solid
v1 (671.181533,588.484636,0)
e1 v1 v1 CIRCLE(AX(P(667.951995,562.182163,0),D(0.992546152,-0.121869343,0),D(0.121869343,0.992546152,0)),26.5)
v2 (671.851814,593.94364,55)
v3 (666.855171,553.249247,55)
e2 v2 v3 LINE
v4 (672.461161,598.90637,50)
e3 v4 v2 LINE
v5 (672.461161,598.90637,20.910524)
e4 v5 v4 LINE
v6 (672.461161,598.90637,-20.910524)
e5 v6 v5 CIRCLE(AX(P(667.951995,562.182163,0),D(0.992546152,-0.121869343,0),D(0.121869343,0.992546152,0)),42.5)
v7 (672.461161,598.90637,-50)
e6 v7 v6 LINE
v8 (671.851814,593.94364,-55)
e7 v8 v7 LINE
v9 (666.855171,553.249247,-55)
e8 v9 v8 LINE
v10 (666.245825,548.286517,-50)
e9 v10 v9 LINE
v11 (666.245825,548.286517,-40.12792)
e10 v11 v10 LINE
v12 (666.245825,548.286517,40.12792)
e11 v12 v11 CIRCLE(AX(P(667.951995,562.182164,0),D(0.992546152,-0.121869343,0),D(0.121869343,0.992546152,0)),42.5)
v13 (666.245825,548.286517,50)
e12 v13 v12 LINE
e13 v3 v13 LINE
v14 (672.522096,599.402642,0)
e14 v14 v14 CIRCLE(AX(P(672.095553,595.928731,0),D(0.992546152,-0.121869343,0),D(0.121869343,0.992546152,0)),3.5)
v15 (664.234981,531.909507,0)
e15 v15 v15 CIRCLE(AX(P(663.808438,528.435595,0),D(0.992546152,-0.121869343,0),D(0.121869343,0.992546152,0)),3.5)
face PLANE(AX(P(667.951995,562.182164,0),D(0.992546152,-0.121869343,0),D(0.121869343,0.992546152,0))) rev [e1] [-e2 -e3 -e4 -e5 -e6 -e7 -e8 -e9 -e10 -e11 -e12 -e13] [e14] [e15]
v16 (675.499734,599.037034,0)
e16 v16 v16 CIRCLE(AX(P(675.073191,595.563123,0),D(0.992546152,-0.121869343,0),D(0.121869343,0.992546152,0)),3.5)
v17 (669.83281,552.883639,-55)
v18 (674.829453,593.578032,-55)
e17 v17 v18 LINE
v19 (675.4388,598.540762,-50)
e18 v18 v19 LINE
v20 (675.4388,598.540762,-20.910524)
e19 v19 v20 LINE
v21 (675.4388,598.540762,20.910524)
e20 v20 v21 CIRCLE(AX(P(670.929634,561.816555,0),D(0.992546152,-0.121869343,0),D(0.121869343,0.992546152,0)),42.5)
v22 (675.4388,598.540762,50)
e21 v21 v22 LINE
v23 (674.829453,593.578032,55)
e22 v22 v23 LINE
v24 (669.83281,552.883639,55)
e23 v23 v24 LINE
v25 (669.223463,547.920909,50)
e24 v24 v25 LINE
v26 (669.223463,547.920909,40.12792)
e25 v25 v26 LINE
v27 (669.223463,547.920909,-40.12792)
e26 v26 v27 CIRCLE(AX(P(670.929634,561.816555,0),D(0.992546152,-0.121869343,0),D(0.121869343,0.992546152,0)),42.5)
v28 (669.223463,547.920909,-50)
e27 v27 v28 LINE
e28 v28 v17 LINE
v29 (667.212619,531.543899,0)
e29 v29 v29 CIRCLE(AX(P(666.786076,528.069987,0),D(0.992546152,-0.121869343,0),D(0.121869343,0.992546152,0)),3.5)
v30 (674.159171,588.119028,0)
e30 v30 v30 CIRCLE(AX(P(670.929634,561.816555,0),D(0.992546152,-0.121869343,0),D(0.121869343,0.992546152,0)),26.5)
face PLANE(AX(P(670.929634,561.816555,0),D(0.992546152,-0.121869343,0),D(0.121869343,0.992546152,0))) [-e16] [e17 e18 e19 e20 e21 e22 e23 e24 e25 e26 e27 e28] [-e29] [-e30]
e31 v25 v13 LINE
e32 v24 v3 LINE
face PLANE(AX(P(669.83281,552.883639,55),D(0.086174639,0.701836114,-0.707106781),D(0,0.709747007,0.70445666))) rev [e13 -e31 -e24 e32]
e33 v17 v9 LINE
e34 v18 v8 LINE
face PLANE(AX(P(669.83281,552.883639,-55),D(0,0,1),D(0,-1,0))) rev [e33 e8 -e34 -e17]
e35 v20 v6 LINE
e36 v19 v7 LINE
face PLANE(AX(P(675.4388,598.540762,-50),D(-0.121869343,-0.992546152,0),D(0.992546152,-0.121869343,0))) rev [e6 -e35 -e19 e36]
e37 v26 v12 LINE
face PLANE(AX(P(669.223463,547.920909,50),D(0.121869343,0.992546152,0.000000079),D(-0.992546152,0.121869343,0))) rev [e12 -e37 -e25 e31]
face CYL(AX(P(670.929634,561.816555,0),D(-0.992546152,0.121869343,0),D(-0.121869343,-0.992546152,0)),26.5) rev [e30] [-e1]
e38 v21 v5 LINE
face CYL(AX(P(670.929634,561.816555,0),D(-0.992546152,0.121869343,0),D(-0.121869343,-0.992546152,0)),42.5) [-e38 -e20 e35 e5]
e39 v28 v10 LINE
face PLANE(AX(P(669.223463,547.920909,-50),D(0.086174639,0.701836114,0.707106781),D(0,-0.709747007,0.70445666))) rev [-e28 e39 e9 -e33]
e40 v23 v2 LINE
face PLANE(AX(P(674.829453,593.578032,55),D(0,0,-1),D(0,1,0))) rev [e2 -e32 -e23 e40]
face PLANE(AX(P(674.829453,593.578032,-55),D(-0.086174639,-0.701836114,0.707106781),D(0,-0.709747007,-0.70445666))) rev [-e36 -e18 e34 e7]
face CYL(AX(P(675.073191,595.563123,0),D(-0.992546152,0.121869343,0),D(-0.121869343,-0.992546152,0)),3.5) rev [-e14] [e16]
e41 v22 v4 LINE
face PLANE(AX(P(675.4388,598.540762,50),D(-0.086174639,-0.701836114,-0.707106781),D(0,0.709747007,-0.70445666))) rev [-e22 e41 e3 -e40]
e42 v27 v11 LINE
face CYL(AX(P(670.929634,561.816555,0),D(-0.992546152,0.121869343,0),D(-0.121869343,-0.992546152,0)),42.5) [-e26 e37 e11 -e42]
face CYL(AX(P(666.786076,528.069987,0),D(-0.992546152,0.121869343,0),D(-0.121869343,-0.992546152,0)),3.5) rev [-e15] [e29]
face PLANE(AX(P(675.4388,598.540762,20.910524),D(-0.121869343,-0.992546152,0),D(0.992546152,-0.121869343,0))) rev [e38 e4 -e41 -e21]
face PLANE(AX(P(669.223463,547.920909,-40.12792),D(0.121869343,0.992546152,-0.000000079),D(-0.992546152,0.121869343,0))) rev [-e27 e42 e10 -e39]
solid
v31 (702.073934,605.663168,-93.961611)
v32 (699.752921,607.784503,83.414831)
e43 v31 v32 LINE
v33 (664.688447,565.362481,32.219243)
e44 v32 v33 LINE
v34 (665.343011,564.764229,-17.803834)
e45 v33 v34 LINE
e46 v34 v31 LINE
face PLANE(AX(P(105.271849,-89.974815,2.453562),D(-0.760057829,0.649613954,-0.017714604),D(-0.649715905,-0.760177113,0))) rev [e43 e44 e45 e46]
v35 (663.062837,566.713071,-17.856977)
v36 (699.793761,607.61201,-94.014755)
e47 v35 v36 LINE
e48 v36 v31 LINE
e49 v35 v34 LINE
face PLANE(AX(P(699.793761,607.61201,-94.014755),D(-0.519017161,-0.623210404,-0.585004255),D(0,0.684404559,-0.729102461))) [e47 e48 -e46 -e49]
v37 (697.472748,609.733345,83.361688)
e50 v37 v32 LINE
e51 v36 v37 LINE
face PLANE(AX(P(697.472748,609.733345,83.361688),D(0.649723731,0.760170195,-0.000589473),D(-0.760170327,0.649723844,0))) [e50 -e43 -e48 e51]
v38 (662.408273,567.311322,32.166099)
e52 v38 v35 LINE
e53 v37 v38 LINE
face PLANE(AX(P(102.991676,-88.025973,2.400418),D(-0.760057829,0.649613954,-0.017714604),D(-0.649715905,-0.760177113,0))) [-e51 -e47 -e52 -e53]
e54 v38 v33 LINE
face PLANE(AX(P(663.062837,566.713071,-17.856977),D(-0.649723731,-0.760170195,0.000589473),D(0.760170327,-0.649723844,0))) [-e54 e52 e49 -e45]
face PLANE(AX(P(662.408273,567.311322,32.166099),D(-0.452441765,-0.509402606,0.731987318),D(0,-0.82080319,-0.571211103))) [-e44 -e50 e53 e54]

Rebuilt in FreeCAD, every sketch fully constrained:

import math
import FreeCAD as App
import Part
import Sketcher
from FreeCAD import Vector

doc = App.newDocument("Part")
body = doc.addObject("PartDesign::Body", "Body")

# Sketch on an angled plane
sketch1 = doc.addObject("Sketcher::SketchObject", "Sketch")
body.addObject(sketch1)
sketch1.Placement = App.Placement(Vector(105.271849, -89.974815, 2.453562), App.Rotation(Vector(0.013083184, -0.011957632, -0.99984291), Vector(0.649723731, 0.760170195, -0.000589473), Vector(0.760057829, -0.649613954, 0.017714604), "ZXY"))
sketch1.addGeometry(Part.LineSegment(Vector(-82, 917, 0), Vector(-30, 862, 0)), False)
sketch1.addGeometry(Part.LineSegment(Vector(-30, 862, 0), Vector(20, 862, 0)), False)
sketch1.addGeometry(Part.LineSegment(Vector(20, 862, 0), Vector(96, 917, 0)), False)
sketch1.addGeometry(Part.LineSegment(Vector(96, 917, 0), Vector(-82, 917, 0)), False)
sketch1.addConstraint(Sketcher.Constraint("Coincident", 0, 2, 1, 1))
sketch1.addConstraint(Sketcher.Constraint("Coincident", 1, 2, 2, 1))
sketch1.addConstraint(Sketcher.Constraint("Coincident", 2, 2, 3, 1))
sketch1.addConstraint(Sketcher.Constraint("Coincident", 3, 2, 0, 1))
sketch1.addConstraint(Sketcher.Constraint("Horizontal", 1))
sketch1.addConstraint(Sketcher.Constraint("Horizontal", 3))
sketch1.addConstraint(Sketcher.Constraint("DistanceY", 1, 2, 2, 2, 55.0))
sketch1.addConstraint(Sketcher.Constraint("DistanceX", 3, 2, 3, 1, 177.404311))
sketch1.addConstraint(Sketcher.Constraint("DistanceX", -1, 1, 1, 2, 19.752599))
sketch1.addConstraint(Sketcher.Constraint("Distance", 0, 75.167371))
sketch1.addConstraint(Sketcher.Constraint("DistanceX", 1, 1, 1, 2, 50.030936))
sketch1.addConstraint(Sketcher.Constraint("DistanceY", -1, 1, 0, 2, 861.616572))
pad1 = doc.addObject("PartDesign::Pad", "Pad")
body.addObject(pad1)
pad1.Profile = sketch1
pad1.Length = 3
pad1.Reversed = True
body2 = doc.addObject("PartDesign::Body", "Body001")

# Sketch on an angled plane
sketch2 = doc.addObject("Sketcher::SketchObject", "Sketch001")
body2.addObject(sketch2)
sketch2.Placement = App.Placement(Vector(590.029394, -72.4465, 0), App.Rotation(Vector(0, 0, -1), Vector(0.121869343, 0.992546152, 0), Vector(0.992546152, -0.121869343, 0), "ZXY"))
sketch2.addGeometry(Part.LineSegment(Vector(40.1, 625.4, 0), Vector(50, 625.4, 0)), False)
sketch2.addGeometry(Part.LineSegment(Vector(50, 625.4, 0), Vector(55, 630.4, 0)), False)
sketch2.addGeometry(Part.LineSegment(Vector(55, 630.4, 0), Vector(55, 671.4, 0)), False)
sketch2.addGeometry(Part.LineSegment(Vector(55, 671.4, 0), Vector(50, 676.4, 0)), False)
sketch2.addGeometry(Part.LineSegment(Vector(50, 676.4, 0), Vector(20.9, 676.4, 0)), False)
sketch2.addGeometry(Part.ArcOfCircle(Part.Circle(Vector(0, 639.4, 0), Vector(0, 0, 1), 42.5), math.radians(61), math.radians(119)), False)
sketch2.addGeometry(Part.LineSegment(Vector(-20.9, 676.4, 0), Vector(-50, 676.4, 0)), False)
sketch2.addGeometry(Part.LineSegment(Vector(-50, 676.4, 0), Vector(-55, 671.4, 0)), False)
sketch2.addGeometry(Part.LineSegment(Vector(-55, 671.4, 0), Vector(-55, 630.4, 0)), False)
sketch2.addGeometry(Part.LineSegment(Vector(-55, 630.4, 0), Vector(-50, 625.4, 0)), False)
sketch2.addGeometry(Part.LineSegment(Vector(-50, 625.4, 0), Vector(-40.1, 625.4, 0)), False)
sketch2.addGeometry(Part.ArcOfCircle(Part.Circle(Vector(0, 639.4, 0), Vector(0, 0, 1), 42.5), math.radians(-161), math.radians(-19)), False)
sketch2.addGeometry(Part.Circle(Vector(0, 605.4, 0), Vector(0, 0, 1), 3.5), False)
sketch2.addGeometry(Part.Circle(Vector(0, 639.4, 0), Vector(0, 0, 1), 26.5), False)
sketch2.addGeometry(Part.Circle(Vector(0, 673.4, 0), Vector(0, 0, 1), 3.5), False)
sketch2.addConstraint(Sketcher.Constraint("Coincident", 0, 2, 1, 1))
sketch2.addConstraint(Sketcher.Constraint("Coincident", 1, 2, 2, 1))
sketch2.addConstraint(Sketcher.Constraint("Coincident", 2, 2, 3, 1))
sketch2.addConstraint(Sketcher.Constraint("Coincident", 3, 2, 4, 1))
sketch2.addConstraint(Sketcher.Constraint("Coincident", 4, 2, 5, 1))
sketch2.addConstraint(Sketcher.Constraint("Coincident", 5, 2, 6, 1))
sketch2.addConstraint(Sketcher.Constraint("Coincident", 6, 2, 7, 1))
sketch2.addConstraint(Sketcher.Constraint("Coincident", 7, 2, 8, 1))
sketch2.addConstraint(Sketcher.Constraint("Coincident", 8, 2, 9, 1))
sketch2.addConstraint(Sketcher.Constraint("Coincident", 9, 2, 10, 1))
sketch2.addConstraint(Sketcher.Constraint("Coincident", 10, 2, 11, 1))
sketch2.addConstraint(Sketcher.Constraint("Coincident", 11, 2, 0, 1))
sketch2.addConstraint(Sketcher.Constraint("Horizontal", 0))
sketch2.addConstraint(Sketcher.Constraint("Vertical", 2))
sketch2.addConstraint(Sketcher.Constraint("Horizontal", 4))
sketch2.addConstraint(Sketcher.Constraint("Horizontal", 6))
sketch2.addConstraint(Sketcher.Constraint("Vertical", 8))
sketch2.addConstraint(Sketcher.Constraint("Horizontal", 10))
sketch2.addConstraint(Sketcher.Constraint("Coincident", 11, 3, 5, 3))
sketch2.addConstraint(Sketcher.Constraint("Coincident", 13, 3, 5, 3))
sketch2.addConstraint(Sketcher.Constraint("Equal", 5, 11))
sketch2.addConstraint(Sketcher.Constraint("Equal", 12, 14))
sketch2.addConstraint(Sketcher.Constraint("Symmetric", 4, 2, 5, 2, -2))
sketch2.addConstraint(Sketcher.Constraint("Symmetric", 2, 2, 7, 2, -2))
sketch2.addConstraint(Sketcher.Constraint("Symmetric", 0, 2, 9, 2, -2))
sketch2.addConstraint(Sketcher.Constraint("PointOnObject", 12, 3, -2))
sketch2.addConstraint(Sketcher.Constraint("PointOnObject", 14, 3, -2))
sketch2.addConstraint(Sketcher.Constraint("Perpendicular", 1, 3))
sketch2.addConstraint(Sketcher.Constraint("Perpendicular", 3, 7))
sketch2.addConstraint(Sketcher.Constraint("Perpendicular", 7, 9))
sketch2.addConstraint(Sketcher.Constraint("Horizontal", 1, 2, 8, 2))
sketch2.addConstraint(Sketcher.Constraint("Vertical", 0, 2, 3, 2))
sketch2.addConstraint(Sketcher.Constraint("Diameter", 12, 7.0))
sketch2.addConstraint(Sketcher.Constraint("Diameter", 13, 53.0))
sketch2.addConstraint(Sketcher.Constraint("Radius", 5, 42.5))
sketch2.addConstraint(Sketcher.Constraint("DistanceY", 2, 1, 2, 2, 41.0))
sketch2.addConstraint(Sketcher.Constraint("DistanceX", -1, 1, 0, 2, 50.0))
sketch2.addConstraint(Sketcher.Constraint("DistanceX", -1, 1, 1, 2, 55.0))
sketch2.addConstraint(Sketcher.Constraint("DistanceY", 12, 3, 5, 3, 33.999998))
sketch2.addConstraint(Sketcher.Constraint("DistanceY", 11, 3, 14, 3, 33.999998))
sketch2.addConstraint(Sketcher.Constraint("DistanceY", 0, 2, 13, 3, 14.0))
sketch2.addConstraint(Sketcher.Constraint("DistanceY", -1, 1, 5, 3, 639.394614))
pad2 = doc.addObject("PartDesign::Pad", "Pad001")
body2.addObject(pad2)
pad2.Profile = sketch2
pad2.Length = 3

doc.recompute()
